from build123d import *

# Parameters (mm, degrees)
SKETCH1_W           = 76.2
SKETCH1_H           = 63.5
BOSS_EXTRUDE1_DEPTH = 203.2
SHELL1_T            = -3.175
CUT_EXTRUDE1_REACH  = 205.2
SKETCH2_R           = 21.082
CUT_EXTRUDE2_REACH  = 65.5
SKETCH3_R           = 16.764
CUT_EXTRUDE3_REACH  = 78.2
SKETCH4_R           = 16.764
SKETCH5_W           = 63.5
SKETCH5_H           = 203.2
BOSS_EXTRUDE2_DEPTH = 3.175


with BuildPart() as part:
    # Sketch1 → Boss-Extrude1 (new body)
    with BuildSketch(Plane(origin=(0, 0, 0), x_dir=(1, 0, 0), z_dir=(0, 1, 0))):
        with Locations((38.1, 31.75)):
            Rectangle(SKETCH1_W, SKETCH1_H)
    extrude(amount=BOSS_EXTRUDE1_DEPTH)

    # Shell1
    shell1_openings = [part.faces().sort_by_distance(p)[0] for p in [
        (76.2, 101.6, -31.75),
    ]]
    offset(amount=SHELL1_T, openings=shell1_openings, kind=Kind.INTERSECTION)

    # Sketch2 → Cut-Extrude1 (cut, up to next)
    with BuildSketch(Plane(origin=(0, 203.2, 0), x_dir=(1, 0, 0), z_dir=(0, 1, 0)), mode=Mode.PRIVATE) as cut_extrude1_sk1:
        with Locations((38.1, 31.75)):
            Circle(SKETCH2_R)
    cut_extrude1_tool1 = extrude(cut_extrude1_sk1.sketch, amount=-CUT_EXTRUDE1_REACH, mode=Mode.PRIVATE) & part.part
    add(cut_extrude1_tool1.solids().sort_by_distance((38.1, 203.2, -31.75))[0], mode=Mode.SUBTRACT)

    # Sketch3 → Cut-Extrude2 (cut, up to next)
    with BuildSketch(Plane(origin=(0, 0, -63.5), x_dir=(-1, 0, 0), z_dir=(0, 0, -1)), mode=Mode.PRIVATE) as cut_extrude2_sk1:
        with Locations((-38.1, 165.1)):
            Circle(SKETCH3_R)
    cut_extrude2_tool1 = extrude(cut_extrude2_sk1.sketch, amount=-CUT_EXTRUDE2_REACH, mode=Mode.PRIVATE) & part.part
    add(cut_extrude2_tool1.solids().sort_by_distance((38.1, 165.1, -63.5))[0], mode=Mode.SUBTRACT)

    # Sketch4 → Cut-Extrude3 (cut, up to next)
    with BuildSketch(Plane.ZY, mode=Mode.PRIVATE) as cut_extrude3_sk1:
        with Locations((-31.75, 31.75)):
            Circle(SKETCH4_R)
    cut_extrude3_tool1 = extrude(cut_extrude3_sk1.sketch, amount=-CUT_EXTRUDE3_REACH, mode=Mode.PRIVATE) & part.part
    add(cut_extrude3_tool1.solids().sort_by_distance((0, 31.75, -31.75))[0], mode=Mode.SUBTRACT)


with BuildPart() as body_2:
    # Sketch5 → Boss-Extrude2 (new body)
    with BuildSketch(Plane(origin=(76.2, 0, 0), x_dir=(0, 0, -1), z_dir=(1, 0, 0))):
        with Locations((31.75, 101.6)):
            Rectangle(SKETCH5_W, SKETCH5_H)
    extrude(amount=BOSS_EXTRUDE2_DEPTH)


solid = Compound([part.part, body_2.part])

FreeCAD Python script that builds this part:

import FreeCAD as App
import Part
import Sketcher
from FreeCAD import Vector
Q = App.Units.Quantity


def faces_at(feature, points):
    """Names of the faces that lie closest to the given points."""
    faces = feature.Shape.Faces
    near = lambda p: min(range(len(faces)), key=lambda i: faces[i].distToShape(Part.Vertex(*p))[0])
    return sorted({f"Face{near(p) + 1}" for p in points})

doc = App.newDocument("Part")
params = doc.addObject("Spreadsheet::Sheet", "Params")
for row, (alias, value) in enumerate([
    ("sketch1_width", "3 in"),
    ("sketch1_height", "2.5 in"),
    ("pad1_length", "8 in"),
    ("thickness_wall", "0.125 in"),
    ("sketch2_diameter", "1.66 in"),
    ("sketch3_diameter", "1.32 in"),
    ("sketch4_diameter", "1.32 in"),
    ("sketch5_width", "8 in"),
    ("sketch5_height", "2.5 in"),
    ("pad2_length", "0.125 in"),
], start=1):
    params.set(f"A{row}", alias)
    params.set(f"B{row}", "=" + value)
    params.setAlias(f"B{row}", alias)

body = doc.addObject("PartDesign::Body", "Body")

# Sketch on XZ plane
sketch1 = body.newObject("Sketcher::SketchObject", "Sketch")
sketch1.AttachmentSupport = (doc.getObject("XZ_Plane"), [""])
sketch1.MapMode = "FlatFace"
sketch1.addGeometry([
    Part.LineSegment(Vector(0, -64, 0), Vector(0, 0, 0)),
    Part.LineSegment(Vector(0, 0, 0), Vector(76, 0, 0)),
    Part.LineSegment(Vector(76, 0, 0), Vector(76, -64, 0)),
    Part.LineSegment(Vector(76, -64, 0), Vector(0, -64, 0)),
], False)
sketch1.addConstraint([
    Sketcher.Constraint("Coincident", 0, 2, 1, 1),
    Sketcher.Constraint("Coincident", 1, 2, 2, 1),
    Sketcher.Constraint("Coincident", 2, 2, 3, 1),
    Sketcher.Constraint("Coincident", 3, 2, 0, 1),
    Sketcher.Constraint("Vertical", 0),
    Sketcher.Constraint("Horizontal", 1),
    Sketcher.Constraint("Vertical", 2),
    Sketcher.Constraint("Horizontal", 3),
    Sketcher.Constraint("Coincident", 0, 2, -1, 1),
    Sketcher.Constraint("DistanceX", 1, 1, 1, 2, Q("3 in")),
    Sketcher.Constraint("DistanceY", 0, 1, 0, 2, Q("2.5 in")),
])
sketch1.setExpression("Constraints[9]", "Params.sketch1_width")
sketch1.setExpression("Constraints[10]", "Params.sketch1_height")
pad1 = body.newObject("PartDesign::Pad", "Pad")
pad1.Profile = sketch1
pad1.setExpression("Length", "Params.pad1_length")
pad1.Reversed = True
doc.recompute()

thickness = body.newObject("PartDesign::Thickness", "Thickness")
thickness.Base = (pad1, faces_at(pad1, [(76.2, 101.6, -31.75)]))
thickness.setExpression("Value", "Params.thickness_wall")
thickness.Reversed = True
thickness.Join = "Intersection"

# Sketch on XZ plane
sketch2 = body.newObject("Sketcher::SketchObject", "Sketch001")
sketch2.AttachmentSupport = (doc.getObject("XZ_Plane"), [""])
sketch2.MapMode = "FlatFace"
sketch2.AttachmentOffset = App.Placement(Vector(0, 0, -8 * 25.4), App.Rotation())
sketch2.addGeometry(Part.Circle(Vector(38, -32, 0), Vector(0, 0, 1), 21), False)
sketch2.addConstraint([
    Sketcher.Constraint("Diameter", 0, Q("1.66 in")),
    Sketcher.Constraint("DistanceX", -1, 1, 0, 3, Q("1.5 in")),
    Sketcher.Constraint("DistanceY", 0, 3, -1, 1, Q("1.25 in")),
])
sketch2.setExpression("Constraints[0]", "Params.sketch2_diameter")
pocket1 = body.newObject("PartDesign::Pocket", "Pocket")
pocket1.Profile = sketch2
pocket1.Type = "UpToFirst"
pocket1.Reversed = True

# Sketch on XY plane
sketch3 = body.newObject("Sketcher::SketchObject", "Sketch002")
sketch3.AttachmentSupport = (doc.getObject("XY_Plane"), [""])
sketch3.MapMode = "FlatFace"
sketch3.AttachmentOffset = App.Placement(Vector(0, 0, -2.5 * 25.4), App.Rotation())
sketch3.addGeometry(Part.Circle(Vector(38, 165, 0), Vector(0, 0, 1), 17), False)
sketch3.addConstraint([
    Sketcher.Constraint("Diameter", 0, Q("1.32 in")),
    Sketcher.Constraint("DistanceX", -1, 1, 0, 3, Q("1.5 in")),
    Sketcher.Constraint("DistanceY", -1, 1, 0, 3, Q("6.5 in")),
])
sketch3.setExpression("Constraints[0]", "Params.sketch3_diameter")
pocket2 = body.newObject("PartDesign::Pocket", "Pocket001")
pocket2.Profile = sketch3
pocket2.Type = "UpToFirst"
pocket2.Reversed = True

# Sketch on YZ plane
sketch4 = body.newObject("Sketcher::SketchObject", "Sketch003")
sketch4.AttachmentSupport = (doc.getObject("YZ_Plane"), [""])
sketch4.MapMode = "FlatFace"
sketch4.addGeometry(Part.Circle(Vector(32, -32, 0), Vector(0, 0, 1), 17), False)
sketch4.addConstraint([
    Sketcher.Constraint("Diameter", 0, Q("1.32 in")),
    Sketcher.Constraint("DistanceX", -1, 1, 0, 3, Q("1.25 in")),
    Sketcher.Constraint("DistanceY", 0, 3, -1, 1, Q("1.25 in")),
])
sketch4.setExpression("Constraints[0]", "Params.sketch4_diameter")
pocket3 = body.newObject("PartDesign::Pocket", "Pocket002")
pocket3.Profile = sketch4
pocket3.Type = "UpToFirst"
pocket3.Reversed = True
body2 = doc.addObject("PartDesign::Body", "Body001")

# Sketch on YZ plane
sketch5 = body2.newObject("Sketcher::SketchObject", "Sketch004")
sketch5.AttachmentSupport = (doc.getObject("YZ_Plane001"), [""])
sketch5.MapMode = "FlatFace"
sketch5.AttachmentOffset = App.Placement(Vector(0, 0, 3 * 25.4), App.Rotation())
sketch5.addGeometry([
    Part.LineSegment(Vector(203, 0, 0), Vector(0, 0, 0)),
    Part.LineSegment(Vector(0, 0, 0), Vector(0, -64, 0)),
    Part.LineSegment(Vector(0, -64, 0), Vector(203, -64, 0)),
    Part.LineSegment(Vector(203, -64, 0), Vector(203, 0, 0)),
], False)
sketch5.addConstraint([
    Sketcher.Constraint("Coincident", 0, 2, 1, 1),
    Sketcher.Constraint("Coincident", 1, 2, 2, 1),
    Sketcher.Constraint("Coincident", 2, 2, 3, 1),
    Sketcher.Constraint("Coincident", 3, 2, 0, 1),
    Sketcher.Constraint("Horizontal", 0),
    Sketcher.Constraint("Vertical", 1),
    Sketcher.Constraint("Horizontal", 2),
    Sketcher.Constraint("Vertical", 3),
    Sketcher.Constraint("Coincident", 0, 2, -1, 1),
    Sketcher.Constraint("DistanceX", 0, 2, 0, 1, Q("8 in")),
    Sketcher.Constraint("DistanceY", 1, 2, 1, 1, Q("2.5 in")),
])
sketch5.setExpression("Constraints[9]", "Params.sketch5_width")
sketch5.setExpression("Constraints[10]", "Params.sketch5_height")
pad2 = body2.newObject("PartDesign::Pad", "Pad001")
pad2.Profile = sketch5
pad2.setExpression("Length", "Params.pad2_length")

doc.recompute()
